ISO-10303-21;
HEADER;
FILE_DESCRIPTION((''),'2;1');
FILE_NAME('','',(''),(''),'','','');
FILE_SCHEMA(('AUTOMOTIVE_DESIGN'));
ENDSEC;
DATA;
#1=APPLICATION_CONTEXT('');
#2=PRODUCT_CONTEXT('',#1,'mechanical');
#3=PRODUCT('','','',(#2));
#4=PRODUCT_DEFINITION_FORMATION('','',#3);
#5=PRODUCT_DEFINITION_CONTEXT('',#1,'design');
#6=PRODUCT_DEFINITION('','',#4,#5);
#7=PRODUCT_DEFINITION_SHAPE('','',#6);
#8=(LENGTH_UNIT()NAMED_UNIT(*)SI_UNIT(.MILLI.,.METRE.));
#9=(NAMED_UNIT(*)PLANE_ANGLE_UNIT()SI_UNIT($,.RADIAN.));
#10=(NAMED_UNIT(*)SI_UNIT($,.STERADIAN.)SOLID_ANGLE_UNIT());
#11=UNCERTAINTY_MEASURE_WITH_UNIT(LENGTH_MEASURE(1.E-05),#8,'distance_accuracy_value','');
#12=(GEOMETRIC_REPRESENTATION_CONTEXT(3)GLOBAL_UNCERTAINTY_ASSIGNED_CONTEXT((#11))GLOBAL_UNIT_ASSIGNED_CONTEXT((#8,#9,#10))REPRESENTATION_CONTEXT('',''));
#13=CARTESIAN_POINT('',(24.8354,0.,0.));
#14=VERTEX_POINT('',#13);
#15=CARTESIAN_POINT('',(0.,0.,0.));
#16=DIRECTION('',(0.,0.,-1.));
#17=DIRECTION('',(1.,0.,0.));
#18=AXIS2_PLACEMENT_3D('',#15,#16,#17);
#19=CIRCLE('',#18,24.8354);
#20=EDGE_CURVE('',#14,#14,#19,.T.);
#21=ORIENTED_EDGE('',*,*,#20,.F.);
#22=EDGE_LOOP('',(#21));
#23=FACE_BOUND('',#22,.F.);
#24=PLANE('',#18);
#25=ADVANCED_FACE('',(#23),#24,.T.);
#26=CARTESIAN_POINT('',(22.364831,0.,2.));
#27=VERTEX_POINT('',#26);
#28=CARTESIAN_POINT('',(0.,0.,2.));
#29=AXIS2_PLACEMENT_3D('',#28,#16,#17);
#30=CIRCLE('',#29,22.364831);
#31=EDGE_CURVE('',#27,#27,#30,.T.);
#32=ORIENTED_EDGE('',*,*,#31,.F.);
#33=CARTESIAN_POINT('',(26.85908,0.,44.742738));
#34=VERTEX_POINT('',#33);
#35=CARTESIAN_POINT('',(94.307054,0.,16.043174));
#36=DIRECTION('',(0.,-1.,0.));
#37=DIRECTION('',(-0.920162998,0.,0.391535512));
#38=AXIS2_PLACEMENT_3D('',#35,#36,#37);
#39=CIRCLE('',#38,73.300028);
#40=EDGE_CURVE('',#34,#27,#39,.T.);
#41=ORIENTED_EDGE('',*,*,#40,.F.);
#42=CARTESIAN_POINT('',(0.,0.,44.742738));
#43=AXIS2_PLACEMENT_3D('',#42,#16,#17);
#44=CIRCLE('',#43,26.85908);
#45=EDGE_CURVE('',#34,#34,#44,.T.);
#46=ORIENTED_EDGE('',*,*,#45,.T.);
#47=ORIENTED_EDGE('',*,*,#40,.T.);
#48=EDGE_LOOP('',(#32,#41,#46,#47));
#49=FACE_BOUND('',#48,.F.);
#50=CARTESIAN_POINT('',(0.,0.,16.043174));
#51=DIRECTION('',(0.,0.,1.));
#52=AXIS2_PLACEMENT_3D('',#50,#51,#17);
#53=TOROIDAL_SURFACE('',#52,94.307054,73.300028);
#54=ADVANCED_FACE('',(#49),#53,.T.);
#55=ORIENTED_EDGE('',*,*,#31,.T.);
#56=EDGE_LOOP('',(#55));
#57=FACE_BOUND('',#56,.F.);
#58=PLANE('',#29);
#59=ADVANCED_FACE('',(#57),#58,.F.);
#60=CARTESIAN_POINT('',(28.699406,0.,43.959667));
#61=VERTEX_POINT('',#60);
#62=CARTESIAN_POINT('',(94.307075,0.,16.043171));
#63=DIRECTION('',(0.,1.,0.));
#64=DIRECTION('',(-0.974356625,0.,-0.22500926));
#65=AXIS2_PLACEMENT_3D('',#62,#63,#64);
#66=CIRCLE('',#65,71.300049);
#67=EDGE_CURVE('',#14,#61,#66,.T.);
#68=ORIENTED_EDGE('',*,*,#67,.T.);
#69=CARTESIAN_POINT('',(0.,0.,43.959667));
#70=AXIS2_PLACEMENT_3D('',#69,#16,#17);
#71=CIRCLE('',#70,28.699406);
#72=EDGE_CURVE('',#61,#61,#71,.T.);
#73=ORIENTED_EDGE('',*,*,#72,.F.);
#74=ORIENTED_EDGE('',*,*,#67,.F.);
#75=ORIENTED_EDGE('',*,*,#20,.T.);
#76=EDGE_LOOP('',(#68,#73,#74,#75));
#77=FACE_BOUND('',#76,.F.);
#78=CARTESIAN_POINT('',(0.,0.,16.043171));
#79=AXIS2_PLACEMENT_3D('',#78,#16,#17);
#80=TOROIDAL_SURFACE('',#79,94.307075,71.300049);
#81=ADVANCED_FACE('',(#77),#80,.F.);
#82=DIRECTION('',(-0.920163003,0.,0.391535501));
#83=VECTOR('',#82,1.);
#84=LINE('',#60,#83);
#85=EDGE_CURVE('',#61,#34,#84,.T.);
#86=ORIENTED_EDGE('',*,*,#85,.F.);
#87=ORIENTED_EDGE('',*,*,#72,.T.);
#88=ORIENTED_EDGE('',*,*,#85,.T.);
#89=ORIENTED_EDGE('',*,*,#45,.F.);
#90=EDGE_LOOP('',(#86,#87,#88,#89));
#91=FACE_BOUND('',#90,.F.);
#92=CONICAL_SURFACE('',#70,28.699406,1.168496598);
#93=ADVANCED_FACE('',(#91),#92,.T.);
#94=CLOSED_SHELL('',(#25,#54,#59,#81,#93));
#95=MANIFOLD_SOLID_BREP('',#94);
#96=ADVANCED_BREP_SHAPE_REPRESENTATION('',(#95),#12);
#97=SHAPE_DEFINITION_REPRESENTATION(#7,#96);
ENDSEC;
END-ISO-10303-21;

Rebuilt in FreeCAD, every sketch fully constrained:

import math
import FreeCAD as App
import Part
import Sketcher
Q = App.Units.Quantity

doc = App.newDocument("Part")
body = doc.addObject("PartDesign::Body", "Body")

# Sketch on XZ plane
sketch1 = body.newObject("Sketcher::SketchObject", "Sketch")
sketch1.AttachmentSupport = (doc.getObject("XZ_Plane"), [""])
sketch1.MapMode = "FlatFace"
sketch1.addGeometry([
    Part.LineSegment(App.Vector(0, 2, 0), App.Vector(0, 0, 0)),  # 0
    Part.LineSegment(App.Vector(0, 0, 0), App.Vector(24.8354, 0, 0)),  # 1
    Part.ArcOfCircle(Part.Circle(App.Vector(94.307075, 16.043171, 0), App.Vector(0, 0, 1), 71.300049), math.radians(156.949927), math.radians(193.003423)),  # 2
    Part.LineSegment(App.Vector(28.699406, 43.959667, 0), App.Vector(26.85908, 44.742738, 0)),  # 3
    Part.ArcOfCircle(Part.Circle(App.Vector(94.307054, 16.043174, 0), App.Vector(0, 0, 1), 73.300028), math.radians(156.949923), math.radians(191.045288)),  # 4
    Part.LineSegment(App.Vector(22.364831, 2, 0), App.Vector(0, 2, 0)),  # 5
], False)
sketch1.addConstraint([
    Sketcher.Constraint("Coincident", 0, 2, 1, 1),
    Sketcher.Constraint("Coincident", 1, 2, 2, 2),
    Sketcher.Constraint("Coincident", 2, 1, 3, 1),
    Sketcher.Constraint("Coincident", 3, 2, 4, 1),
    Sketcher.Constraint("Coincident", 4, 2, 5, 1),
    Sketcher.Constraint("Coincident", 5, 2, 0, 1),
    Sketcher.Constraint("Vertical", 0),
    Sketcher.Constraint("Horizontal", 1),
    Sketcher.Constraint("Horizontal", 5),
    Sketcher.Constraint("Coincident", 0, 2, -1, 1),
    Sketcher.Constraint("DistanceY", 0, 2, 0, 1, Q("2 mm")),
    Sketcher.Constraint("Distance", 3, Q("2 mm")),
    Sketcher.Constraint("Radius", 2, Q("71.300049 mm")),
    Sketcher.Constraint("Radius", 4, Q("73.300028 mm")),
    Sketcher.Constraint("DistanceX", 1, 1, 1, 2, Q("24.8354 mm")),
    Sketcher.Constraint("DistanceX", 5, 2, 5, 1, Q("22.364831 mm")),
    Sketcher.Constraint("DistanceY", -1, 1, 2, 3, Q("16.043171 mm")),
    Sketcher.Constraint("DistanceX", -1, 1, 3, 2, Q("26.85908 mm")),
    Sketcher.Constraint("DistanceX", 2, 1, 2, 3, Q("65.607669 mm")),
])
revolution = body.newObject("PartDesign::Revolution", "Revolution")
revolution.Profile = sketch1
revolution.ReferenceAxis = (sketch1, ["V_Axis"])
revolution.Angle = 360

doc.recompute()
